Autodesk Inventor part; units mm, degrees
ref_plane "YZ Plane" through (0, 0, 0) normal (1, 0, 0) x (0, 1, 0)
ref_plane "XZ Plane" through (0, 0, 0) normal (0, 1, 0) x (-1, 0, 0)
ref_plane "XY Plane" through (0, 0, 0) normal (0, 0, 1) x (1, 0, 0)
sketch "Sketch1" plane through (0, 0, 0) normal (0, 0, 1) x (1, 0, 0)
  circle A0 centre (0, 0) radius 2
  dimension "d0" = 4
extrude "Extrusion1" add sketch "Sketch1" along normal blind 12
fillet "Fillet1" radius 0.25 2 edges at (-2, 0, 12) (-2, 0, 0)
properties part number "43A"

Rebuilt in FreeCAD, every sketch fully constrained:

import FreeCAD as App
import Part
import Sketcher

V = App.Vector


def edges_at(feature, points):
    """Names of the edges that pass closest to the given points."""
    edges = feature.Shape.Edges
    near = lambda p: min(range(len(edges)), key=lambda i: edges[i].distToShape(Part.Vertex(*p))[0])
    return sorted({f"Edge{near(p) + 1}" for p in points})

doc = App.newDocument("Part")
params = doc.addObject("Spreadsheet::Sheet", "Params")
for row, (alias, value) in enumerate([
    ("sketch1_diameter", "4 mm"),
    ("pad1_length", "12 mm"),
    ("fillet_radius", "0.25 mm"),
], start=1):
    params.set(f"A{row}", alias)
    params.set(f"B{row}", "=" + value)
    params.setAlias(f"B{row}", alias)

body = doc.addObject("PartDesign::Body", "Body")

# Sketch on XY plane
sketch1 = body.newObject("Sketcher::SketchObject", "Sketch")
sketch1.AttachmentSupport = (doc.getObject("XY_Plane"), [""])
sketch1.MapMode = "FlatFace"
sketch1.addGeometry(Part.Circle(V(0, 0, 0), V(0, 0, 1), 2), False)
sketch1.addConstraint(Sketcher.Constraint("Coincident", 0, 3, -1, 1))
sketch1.addConstraint(Sketcher.Constraint("Diameter", 0, 4.0))
sketch1.setExpression("Constraints[1]", "Params.sketch1_diameter")
pad1 = body.newObject("PartDesign::Pad", "Pad")
pad1.Profile = sketch1
pad1.setExpression("Length", "Params.pad1_length")
doc.recompute()

fillet = body.newObject("PartDesign::Fillet", "Fillet")
fillet.Base = (pad1, edges_at(pad1, [(-2, 0, 12), (-2, 0, 0)]))
fillet.setExpression("Radius", "Params.fillet_radius")

doc.recompute()
